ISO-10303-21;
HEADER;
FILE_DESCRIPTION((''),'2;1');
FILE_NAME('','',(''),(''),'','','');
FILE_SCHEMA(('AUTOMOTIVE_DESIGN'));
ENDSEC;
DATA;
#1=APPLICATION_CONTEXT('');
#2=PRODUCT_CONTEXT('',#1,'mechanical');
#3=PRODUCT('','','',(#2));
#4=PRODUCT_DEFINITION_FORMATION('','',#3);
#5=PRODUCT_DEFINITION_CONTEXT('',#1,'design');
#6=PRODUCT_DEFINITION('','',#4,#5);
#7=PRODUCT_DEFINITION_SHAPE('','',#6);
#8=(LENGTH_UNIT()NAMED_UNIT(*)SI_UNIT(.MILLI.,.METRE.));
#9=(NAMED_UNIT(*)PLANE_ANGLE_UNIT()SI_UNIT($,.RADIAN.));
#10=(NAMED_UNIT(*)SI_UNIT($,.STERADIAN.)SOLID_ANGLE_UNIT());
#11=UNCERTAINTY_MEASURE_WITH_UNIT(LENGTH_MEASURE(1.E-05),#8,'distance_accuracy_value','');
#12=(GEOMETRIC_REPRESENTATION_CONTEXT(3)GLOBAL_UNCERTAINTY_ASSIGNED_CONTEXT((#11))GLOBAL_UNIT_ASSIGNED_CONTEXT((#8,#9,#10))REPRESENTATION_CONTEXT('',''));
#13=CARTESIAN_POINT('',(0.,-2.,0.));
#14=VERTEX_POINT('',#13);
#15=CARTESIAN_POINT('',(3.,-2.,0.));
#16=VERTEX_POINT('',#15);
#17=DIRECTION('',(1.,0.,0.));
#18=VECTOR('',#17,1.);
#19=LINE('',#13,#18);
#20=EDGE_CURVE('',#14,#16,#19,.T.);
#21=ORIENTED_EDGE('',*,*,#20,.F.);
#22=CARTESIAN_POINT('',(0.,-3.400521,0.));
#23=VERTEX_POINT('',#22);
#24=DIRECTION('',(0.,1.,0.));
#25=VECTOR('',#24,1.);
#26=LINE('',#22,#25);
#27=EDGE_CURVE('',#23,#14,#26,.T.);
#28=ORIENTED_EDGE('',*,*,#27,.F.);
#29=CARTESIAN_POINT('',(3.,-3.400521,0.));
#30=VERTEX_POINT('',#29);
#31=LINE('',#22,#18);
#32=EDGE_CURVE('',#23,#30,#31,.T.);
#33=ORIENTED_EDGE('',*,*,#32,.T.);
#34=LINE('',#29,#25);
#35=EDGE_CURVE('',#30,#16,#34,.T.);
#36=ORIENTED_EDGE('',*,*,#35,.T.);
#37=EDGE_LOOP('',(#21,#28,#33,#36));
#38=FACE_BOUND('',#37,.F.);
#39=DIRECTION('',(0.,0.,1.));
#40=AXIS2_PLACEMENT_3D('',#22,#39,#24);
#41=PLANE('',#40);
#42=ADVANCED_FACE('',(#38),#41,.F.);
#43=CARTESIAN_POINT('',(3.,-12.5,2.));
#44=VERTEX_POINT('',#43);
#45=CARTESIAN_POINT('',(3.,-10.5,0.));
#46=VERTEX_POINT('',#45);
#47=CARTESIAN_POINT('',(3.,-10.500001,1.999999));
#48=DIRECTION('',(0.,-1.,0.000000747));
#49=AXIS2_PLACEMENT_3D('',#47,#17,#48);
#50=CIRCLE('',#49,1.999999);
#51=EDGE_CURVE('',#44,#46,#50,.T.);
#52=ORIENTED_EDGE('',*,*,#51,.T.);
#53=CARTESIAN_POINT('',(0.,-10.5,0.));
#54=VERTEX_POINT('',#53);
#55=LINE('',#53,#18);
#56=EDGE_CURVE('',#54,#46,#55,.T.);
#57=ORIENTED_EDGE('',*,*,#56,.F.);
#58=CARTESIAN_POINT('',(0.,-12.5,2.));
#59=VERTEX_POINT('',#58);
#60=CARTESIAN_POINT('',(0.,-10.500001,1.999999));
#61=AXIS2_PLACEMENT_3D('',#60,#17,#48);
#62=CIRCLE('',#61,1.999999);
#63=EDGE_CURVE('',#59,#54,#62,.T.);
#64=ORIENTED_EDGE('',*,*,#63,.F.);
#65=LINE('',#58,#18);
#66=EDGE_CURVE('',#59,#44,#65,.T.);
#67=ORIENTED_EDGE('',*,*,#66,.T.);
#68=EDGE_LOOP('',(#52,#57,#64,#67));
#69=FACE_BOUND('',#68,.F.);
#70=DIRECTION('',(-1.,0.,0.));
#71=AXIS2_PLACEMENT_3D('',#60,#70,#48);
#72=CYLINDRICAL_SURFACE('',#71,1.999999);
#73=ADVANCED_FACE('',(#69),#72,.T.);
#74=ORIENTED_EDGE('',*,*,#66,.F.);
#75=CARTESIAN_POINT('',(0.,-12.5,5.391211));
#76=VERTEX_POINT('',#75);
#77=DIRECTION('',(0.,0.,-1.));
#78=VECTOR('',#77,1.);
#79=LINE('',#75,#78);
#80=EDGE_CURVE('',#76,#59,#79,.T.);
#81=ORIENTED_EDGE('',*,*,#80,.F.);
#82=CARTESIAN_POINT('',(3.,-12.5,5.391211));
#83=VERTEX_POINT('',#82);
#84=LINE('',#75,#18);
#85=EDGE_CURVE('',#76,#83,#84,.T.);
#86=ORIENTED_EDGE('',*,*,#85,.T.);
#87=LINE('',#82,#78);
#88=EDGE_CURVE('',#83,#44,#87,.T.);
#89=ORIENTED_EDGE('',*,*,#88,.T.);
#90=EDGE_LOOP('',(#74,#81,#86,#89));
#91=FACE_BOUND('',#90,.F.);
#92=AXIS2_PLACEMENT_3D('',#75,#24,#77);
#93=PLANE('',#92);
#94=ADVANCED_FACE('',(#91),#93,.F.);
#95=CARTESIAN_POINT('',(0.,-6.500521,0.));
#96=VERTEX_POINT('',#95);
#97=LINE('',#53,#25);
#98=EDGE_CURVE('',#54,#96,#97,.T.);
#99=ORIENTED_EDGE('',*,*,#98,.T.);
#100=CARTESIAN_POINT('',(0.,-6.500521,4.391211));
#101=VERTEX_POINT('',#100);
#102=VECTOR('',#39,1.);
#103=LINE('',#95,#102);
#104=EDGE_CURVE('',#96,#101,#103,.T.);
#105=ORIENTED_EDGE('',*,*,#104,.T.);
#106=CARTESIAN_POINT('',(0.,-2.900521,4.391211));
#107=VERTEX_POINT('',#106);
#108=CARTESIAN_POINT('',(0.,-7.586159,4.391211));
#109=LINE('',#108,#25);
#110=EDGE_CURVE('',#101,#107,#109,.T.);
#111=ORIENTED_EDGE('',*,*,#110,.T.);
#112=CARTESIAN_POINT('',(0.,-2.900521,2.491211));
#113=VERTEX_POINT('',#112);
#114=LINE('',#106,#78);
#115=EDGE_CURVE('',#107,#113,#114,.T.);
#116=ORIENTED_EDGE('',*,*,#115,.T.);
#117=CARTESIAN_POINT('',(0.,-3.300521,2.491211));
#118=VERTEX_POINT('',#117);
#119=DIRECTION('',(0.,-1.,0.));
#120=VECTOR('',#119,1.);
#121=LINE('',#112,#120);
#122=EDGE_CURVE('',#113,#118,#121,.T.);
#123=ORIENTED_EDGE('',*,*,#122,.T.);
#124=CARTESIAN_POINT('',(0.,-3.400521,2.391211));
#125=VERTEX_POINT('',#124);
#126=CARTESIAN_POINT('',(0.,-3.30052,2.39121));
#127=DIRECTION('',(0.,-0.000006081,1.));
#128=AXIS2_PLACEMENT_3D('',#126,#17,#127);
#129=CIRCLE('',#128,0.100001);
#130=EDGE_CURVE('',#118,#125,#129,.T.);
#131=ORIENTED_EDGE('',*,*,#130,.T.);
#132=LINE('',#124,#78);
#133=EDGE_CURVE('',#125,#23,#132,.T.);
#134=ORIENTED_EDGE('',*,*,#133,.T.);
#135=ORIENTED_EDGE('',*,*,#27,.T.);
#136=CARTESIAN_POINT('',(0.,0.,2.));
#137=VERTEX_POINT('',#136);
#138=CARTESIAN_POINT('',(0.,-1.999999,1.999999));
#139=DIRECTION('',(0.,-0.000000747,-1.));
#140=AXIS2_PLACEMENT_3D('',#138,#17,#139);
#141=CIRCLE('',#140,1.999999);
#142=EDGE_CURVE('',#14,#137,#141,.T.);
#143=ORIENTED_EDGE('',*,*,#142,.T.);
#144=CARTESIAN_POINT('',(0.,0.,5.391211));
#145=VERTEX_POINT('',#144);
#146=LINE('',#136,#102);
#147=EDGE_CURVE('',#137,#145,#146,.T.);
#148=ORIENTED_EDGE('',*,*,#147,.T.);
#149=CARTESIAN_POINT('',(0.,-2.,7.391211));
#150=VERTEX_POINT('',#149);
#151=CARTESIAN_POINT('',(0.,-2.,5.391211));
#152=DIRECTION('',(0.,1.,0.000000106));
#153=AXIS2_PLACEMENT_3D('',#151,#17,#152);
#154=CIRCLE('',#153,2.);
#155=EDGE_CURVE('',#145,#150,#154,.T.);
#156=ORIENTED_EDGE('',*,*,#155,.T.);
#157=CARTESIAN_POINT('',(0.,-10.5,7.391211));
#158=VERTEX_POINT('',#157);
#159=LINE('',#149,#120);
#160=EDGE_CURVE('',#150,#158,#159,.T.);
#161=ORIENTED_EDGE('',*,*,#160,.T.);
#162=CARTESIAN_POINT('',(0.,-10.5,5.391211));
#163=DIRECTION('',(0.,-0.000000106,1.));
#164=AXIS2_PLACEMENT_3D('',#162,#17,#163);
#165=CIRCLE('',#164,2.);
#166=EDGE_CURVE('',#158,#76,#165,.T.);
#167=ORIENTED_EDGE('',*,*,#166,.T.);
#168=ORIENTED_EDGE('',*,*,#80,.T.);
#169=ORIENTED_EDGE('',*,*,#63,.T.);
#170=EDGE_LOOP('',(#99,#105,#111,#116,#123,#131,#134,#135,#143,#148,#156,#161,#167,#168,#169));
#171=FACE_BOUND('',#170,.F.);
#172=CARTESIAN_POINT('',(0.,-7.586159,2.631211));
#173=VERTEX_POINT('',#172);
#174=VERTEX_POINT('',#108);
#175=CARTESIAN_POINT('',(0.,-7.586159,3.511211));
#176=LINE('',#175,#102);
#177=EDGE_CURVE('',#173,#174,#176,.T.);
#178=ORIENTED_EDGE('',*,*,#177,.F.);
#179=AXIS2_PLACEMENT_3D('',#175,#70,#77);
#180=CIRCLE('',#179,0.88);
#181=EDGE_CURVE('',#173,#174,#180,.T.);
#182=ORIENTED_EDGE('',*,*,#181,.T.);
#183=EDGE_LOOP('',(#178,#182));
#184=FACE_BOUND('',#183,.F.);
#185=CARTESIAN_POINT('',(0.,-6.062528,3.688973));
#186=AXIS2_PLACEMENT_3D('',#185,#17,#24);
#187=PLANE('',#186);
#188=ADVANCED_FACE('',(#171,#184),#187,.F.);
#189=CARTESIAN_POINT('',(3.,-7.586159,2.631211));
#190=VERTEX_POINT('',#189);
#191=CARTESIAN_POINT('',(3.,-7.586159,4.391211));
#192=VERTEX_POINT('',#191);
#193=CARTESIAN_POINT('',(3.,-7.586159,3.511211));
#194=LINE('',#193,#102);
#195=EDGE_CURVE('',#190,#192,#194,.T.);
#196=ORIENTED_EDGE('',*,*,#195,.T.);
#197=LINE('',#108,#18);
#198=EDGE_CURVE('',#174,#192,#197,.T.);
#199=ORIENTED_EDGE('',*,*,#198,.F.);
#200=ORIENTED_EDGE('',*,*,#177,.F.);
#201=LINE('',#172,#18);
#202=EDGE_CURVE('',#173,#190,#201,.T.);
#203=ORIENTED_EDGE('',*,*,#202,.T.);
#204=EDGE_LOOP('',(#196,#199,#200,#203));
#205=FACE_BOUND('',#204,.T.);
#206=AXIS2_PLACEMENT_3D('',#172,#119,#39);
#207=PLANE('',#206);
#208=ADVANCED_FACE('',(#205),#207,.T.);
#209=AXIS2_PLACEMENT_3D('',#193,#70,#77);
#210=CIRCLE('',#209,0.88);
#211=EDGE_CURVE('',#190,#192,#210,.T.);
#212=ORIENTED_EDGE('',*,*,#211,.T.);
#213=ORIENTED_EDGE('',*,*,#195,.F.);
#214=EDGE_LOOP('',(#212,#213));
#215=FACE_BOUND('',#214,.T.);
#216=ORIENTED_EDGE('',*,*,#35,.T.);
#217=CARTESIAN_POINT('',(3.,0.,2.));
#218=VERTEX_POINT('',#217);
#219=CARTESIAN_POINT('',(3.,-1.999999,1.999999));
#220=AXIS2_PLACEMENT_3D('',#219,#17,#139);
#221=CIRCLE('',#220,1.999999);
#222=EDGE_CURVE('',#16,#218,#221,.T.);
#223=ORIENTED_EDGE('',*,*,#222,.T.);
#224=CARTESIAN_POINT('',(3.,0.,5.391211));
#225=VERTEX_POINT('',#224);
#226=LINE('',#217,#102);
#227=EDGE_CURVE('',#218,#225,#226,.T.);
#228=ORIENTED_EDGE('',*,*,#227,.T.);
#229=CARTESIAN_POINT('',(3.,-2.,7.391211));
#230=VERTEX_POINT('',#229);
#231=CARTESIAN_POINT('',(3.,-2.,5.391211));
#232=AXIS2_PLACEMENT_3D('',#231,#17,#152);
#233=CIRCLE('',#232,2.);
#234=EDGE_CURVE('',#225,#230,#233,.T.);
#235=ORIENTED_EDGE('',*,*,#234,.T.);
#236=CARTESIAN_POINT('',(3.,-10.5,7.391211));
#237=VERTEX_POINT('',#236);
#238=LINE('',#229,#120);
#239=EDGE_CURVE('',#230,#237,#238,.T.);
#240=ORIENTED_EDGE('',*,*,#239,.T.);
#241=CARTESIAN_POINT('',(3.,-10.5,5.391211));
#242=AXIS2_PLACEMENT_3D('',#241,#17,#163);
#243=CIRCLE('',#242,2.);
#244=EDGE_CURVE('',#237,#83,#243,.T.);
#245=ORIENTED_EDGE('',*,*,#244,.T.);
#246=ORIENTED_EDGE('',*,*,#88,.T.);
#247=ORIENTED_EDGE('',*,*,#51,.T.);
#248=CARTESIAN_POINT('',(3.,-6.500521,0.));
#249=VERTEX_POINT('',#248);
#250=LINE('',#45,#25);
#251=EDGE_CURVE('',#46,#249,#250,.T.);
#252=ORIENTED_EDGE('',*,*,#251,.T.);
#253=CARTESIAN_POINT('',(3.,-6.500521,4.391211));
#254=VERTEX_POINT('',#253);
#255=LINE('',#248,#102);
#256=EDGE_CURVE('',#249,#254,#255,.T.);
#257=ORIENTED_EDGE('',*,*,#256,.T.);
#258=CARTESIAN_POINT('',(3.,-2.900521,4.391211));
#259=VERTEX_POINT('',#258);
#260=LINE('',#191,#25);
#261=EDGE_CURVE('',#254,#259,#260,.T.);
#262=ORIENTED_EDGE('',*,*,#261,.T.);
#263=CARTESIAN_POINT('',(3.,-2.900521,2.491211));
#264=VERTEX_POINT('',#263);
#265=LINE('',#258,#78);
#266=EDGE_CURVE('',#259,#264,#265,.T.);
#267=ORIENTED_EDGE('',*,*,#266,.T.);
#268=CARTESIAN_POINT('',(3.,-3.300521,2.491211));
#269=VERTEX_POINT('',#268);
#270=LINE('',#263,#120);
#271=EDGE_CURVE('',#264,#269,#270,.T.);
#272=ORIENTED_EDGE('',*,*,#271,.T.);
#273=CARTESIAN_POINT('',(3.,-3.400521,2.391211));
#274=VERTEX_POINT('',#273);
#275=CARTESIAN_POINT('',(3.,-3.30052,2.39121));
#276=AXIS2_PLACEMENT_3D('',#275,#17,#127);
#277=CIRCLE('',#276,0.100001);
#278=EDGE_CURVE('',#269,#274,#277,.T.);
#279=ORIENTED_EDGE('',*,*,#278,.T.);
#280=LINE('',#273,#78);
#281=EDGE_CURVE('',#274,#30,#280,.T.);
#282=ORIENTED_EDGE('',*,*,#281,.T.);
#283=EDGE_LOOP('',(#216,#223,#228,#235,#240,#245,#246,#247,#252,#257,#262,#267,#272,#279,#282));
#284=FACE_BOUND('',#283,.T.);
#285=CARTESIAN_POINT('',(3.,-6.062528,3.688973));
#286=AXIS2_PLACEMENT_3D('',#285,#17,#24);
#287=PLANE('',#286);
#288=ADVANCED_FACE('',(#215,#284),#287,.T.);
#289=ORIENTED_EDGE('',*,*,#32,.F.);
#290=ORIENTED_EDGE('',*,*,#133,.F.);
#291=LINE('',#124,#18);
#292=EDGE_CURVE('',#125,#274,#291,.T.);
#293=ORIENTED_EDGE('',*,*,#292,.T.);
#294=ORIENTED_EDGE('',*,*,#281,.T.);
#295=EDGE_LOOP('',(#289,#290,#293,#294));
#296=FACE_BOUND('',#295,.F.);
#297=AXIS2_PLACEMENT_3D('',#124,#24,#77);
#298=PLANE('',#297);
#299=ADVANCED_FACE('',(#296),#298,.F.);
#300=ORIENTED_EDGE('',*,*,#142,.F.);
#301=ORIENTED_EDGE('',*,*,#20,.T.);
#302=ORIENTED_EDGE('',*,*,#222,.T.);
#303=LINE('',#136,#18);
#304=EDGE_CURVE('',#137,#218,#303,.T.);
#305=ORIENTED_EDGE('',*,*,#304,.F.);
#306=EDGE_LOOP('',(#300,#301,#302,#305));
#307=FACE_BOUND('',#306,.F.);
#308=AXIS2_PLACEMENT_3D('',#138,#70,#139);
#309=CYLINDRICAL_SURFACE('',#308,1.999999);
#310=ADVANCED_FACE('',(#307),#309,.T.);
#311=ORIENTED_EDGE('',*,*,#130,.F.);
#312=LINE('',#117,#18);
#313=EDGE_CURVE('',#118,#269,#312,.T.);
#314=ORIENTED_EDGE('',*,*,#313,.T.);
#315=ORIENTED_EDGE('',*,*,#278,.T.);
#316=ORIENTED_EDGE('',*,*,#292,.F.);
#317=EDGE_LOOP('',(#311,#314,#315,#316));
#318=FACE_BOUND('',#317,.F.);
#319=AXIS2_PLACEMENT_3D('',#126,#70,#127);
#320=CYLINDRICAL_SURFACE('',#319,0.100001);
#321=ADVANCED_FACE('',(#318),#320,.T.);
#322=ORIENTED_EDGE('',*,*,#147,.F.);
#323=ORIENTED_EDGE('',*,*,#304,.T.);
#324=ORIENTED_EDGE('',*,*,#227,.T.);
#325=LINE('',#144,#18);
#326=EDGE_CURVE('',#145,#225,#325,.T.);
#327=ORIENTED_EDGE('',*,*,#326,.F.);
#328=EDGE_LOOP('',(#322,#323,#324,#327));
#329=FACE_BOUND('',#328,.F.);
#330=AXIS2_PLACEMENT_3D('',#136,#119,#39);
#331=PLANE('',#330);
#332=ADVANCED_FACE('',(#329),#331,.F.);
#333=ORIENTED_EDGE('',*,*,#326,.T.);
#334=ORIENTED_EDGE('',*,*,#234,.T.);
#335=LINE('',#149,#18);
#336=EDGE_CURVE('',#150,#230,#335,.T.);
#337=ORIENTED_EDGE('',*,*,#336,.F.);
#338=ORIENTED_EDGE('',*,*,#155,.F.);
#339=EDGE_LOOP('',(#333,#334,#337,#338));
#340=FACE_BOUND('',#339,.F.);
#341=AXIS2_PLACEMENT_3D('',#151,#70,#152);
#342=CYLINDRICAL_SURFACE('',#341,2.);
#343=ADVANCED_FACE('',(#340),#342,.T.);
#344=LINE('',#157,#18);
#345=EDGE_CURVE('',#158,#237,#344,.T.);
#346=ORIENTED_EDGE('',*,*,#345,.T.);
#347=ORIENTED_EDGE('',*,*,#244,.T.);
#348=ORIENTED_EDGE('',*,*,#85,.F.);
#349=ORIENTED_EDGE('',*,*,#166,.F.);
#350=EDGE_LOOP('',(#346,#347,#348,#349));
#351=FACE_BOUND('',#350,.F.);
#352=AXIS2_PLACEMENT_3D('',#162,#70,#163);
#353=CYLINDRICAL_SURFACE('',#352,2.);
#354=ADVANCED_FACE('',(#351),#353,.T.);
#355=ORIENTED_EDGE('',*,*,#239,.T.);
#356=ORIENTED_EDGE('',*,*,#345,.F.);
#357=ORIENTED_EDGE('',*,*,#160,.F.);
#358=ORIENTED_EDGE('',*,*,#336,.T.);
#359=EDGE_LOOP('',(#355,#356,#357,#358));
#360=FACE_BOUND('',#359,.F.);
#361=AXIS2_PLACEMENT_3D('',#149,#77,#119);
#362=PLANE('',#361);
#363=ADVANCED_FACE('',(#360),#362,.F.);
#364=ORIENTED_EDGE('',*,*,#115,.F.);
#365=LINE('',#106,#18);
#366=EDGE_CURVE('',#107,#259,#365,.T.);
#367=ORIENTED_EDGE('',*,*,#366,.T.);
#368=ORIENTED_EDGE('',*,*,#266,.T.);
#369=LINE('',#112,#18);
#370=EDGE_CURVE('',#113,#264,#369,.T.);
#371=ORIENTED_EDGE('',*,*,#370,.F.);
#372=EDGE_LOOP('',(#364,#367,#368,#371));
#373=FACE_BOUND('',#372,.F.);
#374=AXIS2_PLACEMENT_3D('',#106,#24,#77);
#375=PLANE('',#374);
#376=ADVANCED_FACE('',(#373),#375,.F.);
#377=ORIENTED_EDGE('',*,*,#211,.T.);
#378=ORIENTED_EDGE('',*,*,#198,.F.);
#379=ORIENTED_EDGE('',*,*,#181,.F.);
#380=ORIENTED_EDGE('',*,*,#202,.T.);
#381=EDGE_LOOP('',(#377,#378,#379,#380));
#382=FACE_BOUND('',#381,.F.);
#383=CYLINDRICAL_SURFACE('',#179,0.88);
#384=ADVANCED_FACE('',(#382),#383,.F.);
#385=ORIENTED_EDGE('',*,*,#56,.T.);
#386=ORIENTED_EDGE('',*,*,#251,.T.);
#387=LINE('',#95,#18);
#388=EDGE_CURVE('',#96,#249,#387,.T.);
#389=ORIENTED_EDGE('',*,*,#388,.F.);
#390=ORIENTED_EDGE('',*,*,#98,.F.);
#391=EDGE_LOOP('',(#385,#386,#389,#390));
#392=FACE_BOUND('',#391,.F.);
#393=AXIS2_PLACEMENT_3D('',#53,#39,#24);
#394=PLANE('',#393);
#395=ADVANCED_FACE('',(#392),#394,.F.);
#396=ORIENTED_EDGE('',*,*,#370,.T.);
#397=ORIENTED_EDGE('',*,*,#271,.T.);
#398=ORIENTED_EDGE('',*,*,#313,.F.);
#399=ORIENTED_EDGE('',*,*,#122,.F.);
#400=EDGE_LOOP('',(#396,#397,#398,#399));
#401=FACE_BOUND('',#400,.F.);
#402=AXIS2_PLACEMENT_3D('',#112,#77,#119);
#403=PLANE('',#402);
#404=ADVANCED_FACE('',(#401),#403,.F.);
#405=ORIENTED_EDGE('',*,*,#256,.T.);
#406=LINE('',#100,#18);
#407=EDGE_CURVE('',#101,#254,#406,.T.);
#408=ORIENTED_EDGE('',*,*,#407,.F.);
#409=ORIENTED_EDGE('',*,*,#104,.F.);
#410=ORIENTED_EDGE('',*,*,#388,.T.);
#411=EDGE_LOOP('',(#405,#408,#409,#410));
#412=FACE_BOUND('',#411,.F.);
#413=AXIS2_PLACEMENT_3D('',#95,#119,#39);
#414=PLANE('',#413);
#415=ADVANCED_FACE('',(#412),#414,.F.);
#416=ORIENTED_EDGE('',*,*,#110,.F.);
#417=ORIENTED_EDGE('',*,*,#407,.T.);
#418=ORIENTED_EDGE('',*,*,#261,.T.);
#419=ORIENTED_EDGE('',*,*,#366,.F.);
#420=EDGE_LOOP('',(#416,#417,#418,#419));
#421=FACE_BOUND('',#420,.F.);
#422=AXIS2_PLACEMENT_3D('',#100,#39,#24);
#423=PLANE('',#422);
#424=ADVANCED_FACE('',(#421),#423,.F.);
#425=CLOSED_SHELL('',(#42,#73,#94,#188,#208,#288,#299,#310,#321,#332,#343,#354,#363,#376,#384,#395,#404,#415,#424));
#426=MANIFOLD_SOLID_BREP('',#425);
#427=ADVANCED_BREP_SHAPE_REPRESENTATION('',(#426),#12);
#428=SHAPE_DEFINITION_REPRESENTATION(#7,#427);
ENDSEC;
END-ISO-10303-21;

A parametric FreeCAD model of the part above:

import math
import FreeCAD as App
import Part
import Sketcher

V = App.Vector

doc = App.newDocument("Part")
body = doc.addObject("PartDesign::Body", "Body")

# Sketch on YZ plane
sketch1 = body.newObject("Sketcher::SketchObject", "Sketch")
sketch1.AttachmentSupport = (doc.getObject("YZ_Plane"), [""])
sketch1.MapMode = "FlatFace"
sketch1.addGeometry([
    Part.ArcOfCircle(Part.Circle(V(-2, 2, 0), V(0, 0, 1), 2), math.radians(-90), math.radians(0)),  # 0
    Part.LineSegment(V(0, 2, 0), V(0, 5.39, 0)),  # 1
    Part.ArcOfCircle(Part.Circle(V(-2, 5.39, 0), V(0, 0, 1), 2), math.radians(0), math.radians(90)),  # 2
    Part.LineSegment(V(-2, 7.39, 0), V(-10.5, 7.39, 0)),  # 3
    Part.ArcOfCircle(Part.Circle(V(-10.5, 5.39, 0), V(0, 0, 1), 2), math.radians(90), math.radians(180)),  # 4
    Part.LineSegment(V(-12.5, 5.39, 0), V(-12.5, 2, 0)),  # 5
    Part.ArcOfCircle(Part.Circle(V(-10.5, 2, 0), V(0, 0, 1), 2), math.radians(180), math.radians(270)),  # 6
    Part.LineSegment(V(-10.5, 0, 0), V(-6.5, 0, 0)),  # 7
    Part.LineSegment(V(-6.5, 0, 0), V(-6.5, 4.39, 0)),  # 8
    Part.LineSegment(V(-6.5, 4.39, 0), V(-2.9, 4.39, 0)),  # 9
    Part.LineSegment(V(-2.9, 4.39, 0), V(-2.9, 2.49, 0)),  # 10
    Part.LineSegment(V(-2.9, 2.49, 0), V(-3.3, 2.49, 0)),  # 11
    Part.ArcOfCircle(Part.Circle(V(-3.3, 2.39, 0), V(0, 0, 1), 0.1), math.radians(90), math.radians(180)),  # 12
    Part.LineSegment(V(-3.4, 2.39, 0), V(-3.4, 0, 0)),  # 13
    Part.LineSegment(V(-3.4, 0, 0), V(-2, 0, 0)),  # 14
    Part.ArcOfCircle(Part.Circle(V(-7.59, 3.51, 0), V(0, 0, 1), 0.88), math.radians(90), math.radians(270)),  # 15
    Part.LineSegment(V(-7.59, 4.39, 0), V(-7.59, 2.63, 0)),  # 16
], False)
sketch1.addConstraint([
    Sketcher.Constraint("Tangent", 0, 2, 1, 1),
    Sketcher.Constraint("Tangent", 1, 2, 2, 1),
    Sketcher.Constraint("Tangent", 2, 2, 3, 1),
    Sketcher.Constraint("Tangent", 3, 2, 4, 1),
    Sketcher.Constraint("Tangent", 4, 2, 5, 1),
    Sketcher.Constraint("Tangent", 5, 2, 6, 1),
    Sketcher.Constraint("Tangent", 6, 2, 7, 1),
    Sketcher.Constraint("Coincident", 7, 2, 8, 1),
    Sketcher.Constraint("Coincident", 8, 2, 9, 1),
    Sketcher.Constraint("Coincident", 9, 2, 10, 1),
    Sketcher.Constraint("Coincident", 10, 2, 11, 1),
    Sketcher.Constraint("Coincident", 11, 2, 12, 1),
    Sketcher.Constraint("Coincident", 12, 2, 13, 1),
    Sketcher.Constraint("Coincident", 13, 2, 14, 1),
    Sketcher.Constraint("Tangent", 14, 2, 0, 1),
    Sketcher.Constraint("Coincident", 15, 1, 16, 1),
    Sketcher.Constraint("Coincident", 16, 2, 15, 2),
    Sketcher.Constraint("Vertical", 1),
    Sketcher.Constraint("Horizontal", 3),
    Sketcher.Constraint("Vertical", 5),
    Sketcher.Constraint("Horizontal", 7),
    Sketcher.Constraint("Vertical", 8),
    Sketcher.Constraint("Horizontal", 9),
    Sketcher.Constraint("Vertical", 10),
    Sketcher.Constraint("Horizontal", 11),
    Sketcher.Constraint("Vertical", 13),
    Sketcher.Constraint("Horizontal", 14),
    Sketcher.Constraint("Vertical", 16),
    Sketcher.Constraint("Equal", 0, 2),
    Sketcher.Constraint("Equal", 2, 4),
    Sketcher.Constraint("Equal", 4, 6),
    Sketcher.Constraint("PointOnObject", 0, 2, -2),
    Sketcher.Constraint("PointOnObject", 6, 2, -1),
    Sketcher.Constraint("PointOnObject", 13, 2, -1),
    Sketcher.Constraint("Horizontal", 9, 2, 15, 1),
    Sketcher.Constraint("Vertical", 12, 3, 11, 2),
    Sketcher.Constraint("Radius", 0, 1.999999),
    Sketcher.Constraint("Radius", 12, 0.100001),
    Sketcher.Constraint("Radius", 15, 0.88),
    Sketcher.Constraint("DistanceX", 3, 2, 3, 1, 8.5),
    Sketcher.Constraint("DistanceX", 9, 1, 9, 2, 3.6),
    Sketcher.Constraint("DistanceX", 11, 2, 11, 1, 0.4),
    Sketcher.Constraint("DistanceY", 10, 2, 10, 1, 1.9),
    Sketcher.Constraint("DistanceY", 12, 3, 2, 3, 3.0),
    Sketcher.Constraint("DistanceY", 12, 2, 9, 2, 2.0),
    Sketcher.Constraint("DistanceX", 7, 1, 7, 2, 3.999479),
    Sketcher.Constraint("DistanceY", 1, 1, 1, 2, 3.391211),
    Sketcher.Constraint("DistanceX", 15, 3, -1, 1, 7.586159),
    Sketcher.Constraint("DistanceX", 15, 1, -1, 1, 7.586159),
])
pad1 = body.newObject("PartDesign::Pad", "Pad")
pad1.Profile = sketch1
pad1.Length = 3

doc.recompute()
